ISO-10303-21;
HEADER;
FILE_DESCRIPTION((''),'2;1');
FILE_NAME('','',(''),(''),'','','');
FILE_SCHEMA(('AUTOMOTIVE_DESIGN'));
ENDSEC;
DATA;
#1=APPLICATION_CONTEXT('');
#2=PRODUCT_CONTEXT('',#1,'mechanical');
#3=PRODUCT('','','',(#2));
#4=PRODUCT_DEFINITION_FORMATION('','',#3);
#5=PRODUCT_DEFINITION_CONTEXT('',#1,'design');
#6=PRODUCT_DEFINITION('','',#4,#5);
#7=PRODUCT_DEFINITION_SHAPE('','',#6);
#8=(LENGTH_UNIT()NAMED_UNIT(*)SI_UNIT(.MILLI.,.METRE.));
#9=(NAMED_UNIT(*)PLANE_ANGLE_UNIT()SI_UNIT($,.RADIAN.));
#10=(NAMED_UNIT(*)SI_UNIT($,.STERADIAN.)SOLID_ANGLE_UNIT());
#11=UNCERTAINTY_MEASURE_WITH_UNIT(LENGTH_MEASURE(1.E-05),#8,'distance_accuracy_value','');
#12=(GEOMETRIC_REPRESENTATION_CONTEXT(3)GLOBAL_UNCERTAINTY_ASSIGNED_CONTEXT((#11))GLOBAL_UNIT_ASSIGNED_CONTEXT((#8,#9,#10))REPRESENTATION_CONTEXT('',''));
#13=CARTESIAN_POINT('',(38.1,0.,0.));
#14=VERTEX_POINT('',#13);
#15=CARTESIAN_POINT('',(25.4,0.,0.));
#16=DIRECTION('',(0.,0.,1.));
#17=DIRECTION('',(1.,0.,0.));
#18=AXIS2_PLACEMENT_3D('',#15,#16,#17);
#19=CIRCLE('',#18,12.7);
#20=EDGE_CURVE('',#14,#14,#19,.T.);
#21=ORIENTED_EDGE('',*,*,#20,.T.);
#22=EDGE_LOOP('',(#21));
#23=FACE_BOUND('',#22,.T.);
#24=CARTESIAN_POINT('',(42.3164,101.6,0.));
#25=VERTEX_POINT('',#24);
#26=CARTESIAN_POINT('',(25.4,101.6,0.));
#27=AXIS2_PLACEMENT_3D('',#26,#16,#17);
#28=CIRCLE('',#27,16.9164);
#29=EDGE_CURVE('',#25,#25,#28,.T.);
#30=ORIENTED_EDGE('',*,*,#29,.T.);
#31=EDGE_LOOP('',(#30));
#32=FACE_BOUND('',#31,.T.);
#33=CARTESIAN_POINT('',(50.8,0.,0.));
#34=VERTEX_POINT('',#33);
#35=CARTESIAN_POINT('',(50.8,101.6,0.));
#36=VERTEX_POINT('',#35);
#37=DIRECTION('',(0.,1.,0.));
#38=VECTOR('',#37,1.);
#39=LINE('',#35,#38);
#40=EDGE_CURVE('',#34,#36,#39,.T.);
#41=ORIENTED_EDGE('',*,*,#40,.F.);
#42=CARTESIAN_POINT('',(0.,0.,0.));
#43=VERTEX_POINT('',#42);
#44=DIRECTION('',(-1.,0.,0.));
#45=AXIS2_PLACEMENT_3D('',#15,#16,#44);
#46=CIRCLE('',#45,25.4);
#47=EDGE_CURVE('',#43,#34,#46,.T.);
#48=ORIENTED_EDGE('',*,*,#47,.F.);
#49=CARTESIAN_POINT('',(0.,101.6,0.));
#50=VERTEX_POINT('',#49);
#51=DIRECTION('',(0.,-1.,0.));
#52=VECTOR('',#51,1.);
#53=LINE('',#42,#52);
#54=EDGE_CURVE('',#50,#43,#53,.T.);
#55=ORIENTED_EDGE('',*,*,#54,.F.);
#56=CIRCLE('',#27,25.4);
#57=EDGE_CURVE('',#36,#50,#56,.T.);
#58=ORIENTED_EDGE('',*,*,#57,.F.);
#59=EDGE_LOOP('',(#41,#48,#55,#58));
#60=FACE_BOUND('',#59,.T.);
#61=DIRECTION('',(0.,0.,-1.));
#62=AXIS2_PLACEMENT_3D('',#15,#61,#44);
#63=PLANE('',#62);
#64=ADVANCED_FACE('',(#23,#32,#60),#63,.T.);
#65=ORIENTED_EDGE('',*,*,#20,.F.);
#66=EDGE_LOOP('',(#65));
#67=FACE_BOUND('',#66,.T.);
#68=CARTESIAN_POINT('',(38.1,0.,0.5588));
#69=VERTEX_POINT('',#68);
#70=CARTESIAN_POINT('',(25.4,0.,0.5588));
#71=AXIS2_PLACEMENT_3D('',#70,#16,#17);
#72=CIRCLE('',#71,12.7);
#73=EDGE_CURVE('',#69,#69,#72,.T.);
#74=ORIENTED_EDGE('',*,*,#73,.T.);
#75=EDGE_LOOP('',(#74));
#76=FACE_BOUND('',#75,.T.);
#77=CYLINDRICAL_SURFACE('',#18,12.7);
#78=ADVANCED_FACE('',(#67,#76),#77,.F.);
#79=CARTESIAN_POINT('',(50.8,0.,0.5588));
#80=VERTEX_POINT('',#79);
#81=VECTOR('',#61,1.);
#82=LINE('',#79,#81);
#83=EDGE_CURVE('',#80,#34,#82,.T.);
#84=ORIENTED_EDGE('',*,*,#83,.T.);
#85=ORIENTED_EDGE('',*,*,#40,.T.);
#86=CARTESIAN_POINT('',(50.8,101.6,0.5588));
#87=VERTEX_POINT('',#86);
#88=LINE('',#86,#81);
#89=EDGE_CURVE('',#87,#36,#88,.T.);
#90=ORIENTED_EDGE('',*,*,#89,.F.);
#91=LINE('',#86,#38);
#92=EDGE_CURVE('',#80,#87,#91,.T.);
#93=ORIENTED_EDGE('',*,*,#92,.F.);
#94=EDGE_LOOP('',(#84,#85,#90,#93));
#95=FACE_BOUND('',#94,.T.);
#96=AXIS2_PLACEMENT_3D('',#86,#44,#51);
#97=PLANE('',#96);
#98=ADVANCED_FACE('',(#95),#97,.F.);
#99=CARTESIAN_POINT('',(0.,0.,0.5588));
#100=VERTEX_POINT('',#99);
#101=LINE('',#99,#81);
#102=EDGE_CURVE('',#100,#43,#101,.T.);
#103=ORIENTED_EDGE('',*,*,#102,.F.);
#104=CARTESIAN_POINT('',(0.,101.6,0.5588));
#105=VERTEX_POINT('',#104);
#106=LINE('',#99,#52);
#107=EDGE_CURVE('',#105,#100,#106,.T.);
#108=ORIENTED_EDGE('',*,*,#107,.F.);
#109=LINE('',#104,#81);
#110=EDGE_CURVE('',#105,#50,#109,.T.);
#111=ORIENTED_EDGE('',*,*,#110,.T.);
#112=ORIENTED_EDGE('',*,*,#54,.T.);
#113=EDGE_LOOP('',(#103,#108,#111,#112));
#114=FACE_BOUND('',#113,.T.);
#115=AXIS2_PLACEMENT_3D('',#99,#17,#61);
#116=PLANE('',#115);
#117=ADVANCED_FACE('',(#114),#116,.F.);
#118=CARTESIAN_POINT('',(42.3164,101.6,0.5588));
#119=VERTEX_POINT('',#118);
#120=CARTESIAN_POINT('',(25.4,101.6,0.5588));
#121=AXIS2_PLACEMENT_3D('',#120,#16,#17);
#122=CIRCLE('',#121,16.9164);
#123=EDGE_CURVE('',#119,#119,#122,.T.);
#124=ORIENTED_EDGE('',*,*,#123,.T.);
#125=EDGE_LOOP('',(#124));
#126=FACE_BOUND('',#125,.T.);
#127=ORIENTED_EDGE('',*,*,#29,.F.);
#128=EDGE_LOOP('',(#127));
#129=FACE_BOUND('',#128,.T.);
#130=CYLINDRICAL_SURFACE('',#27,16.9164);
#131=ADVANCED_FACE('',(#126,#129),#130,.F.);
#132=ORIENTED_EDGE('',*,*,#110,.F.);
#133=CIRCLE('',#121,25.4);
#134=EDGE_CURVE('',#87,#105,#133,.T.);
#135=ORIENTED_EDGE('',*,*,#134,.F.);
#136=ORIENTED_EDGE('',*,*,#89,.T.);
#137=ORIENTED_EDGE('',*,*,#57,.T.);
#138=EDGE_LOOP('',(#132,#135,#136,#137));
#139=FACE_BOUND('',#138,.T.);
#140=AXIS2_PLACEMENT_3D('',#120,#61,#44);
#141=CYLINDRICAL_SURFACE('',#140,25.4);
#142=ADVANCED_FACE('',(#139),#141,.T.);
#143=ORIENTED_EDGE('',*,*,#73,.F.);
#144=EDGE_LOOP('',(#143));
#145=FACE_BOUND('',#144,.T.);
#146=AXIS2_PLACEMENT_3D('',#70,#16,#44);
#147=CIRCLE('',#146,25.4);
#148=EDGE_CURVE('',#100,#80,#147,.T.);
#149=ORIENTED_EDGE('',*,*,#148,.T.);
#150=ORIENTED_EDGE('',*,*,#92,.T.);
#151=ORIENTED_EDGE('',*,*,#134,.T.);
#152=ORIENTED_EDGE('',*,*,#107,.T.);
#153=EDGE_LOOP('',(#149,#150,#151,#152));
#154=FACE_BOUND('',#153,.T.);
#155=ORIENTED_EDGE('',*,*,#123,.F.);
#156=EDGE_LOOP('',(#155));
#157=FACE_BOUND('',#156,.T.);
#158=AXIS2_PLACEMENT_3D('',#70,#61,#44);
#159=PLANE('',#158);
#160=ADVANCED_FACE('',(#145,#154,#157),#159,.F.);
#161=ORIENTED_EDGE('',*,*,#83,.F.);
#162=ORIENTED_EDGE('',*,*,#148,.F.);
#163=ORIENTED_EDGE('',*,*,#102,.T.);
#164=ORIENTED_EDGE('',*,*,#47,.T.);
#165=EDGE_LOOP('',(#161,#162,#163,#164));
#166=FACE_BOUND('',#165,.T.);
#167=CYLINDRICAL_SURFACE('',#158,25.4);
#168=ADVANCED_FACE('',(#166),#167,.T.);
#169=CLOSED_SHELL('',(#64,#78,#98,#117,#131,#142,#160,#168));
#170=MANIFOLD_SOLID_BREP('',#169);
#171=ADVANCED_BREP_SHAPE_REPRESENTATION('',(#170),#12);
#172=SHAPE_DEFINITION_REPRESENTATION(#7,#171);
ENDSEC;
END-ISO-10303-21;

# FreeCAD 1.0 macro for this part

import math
import FreeCAD as App
import Part
import Sketcher

V = App.Vector
Q = App.Units.Quantity

doc = App.newDocument("Part")
body = doc.addObject("PartDesign::Body", "Body")

# Sketch on XY plane
sketch1 = body.newObject("Sketcher::SketchObject", "Sketch")
sketch1.AttachmentSupport = (doc.getObject("XY_Plane"), [""])
sketch1.MapMode = "FlatFace"
sketch1.addGeometry(Part.LineSegment(V(0, 101.6, 0), V(0, 0, 0)), False)
sketch1.addGeometry(Part.ArcOfCircle(Part.Circle(V(25.4, 0, 0), V(0, 0, 1), 25.4), math.radians(180), math.radians(360)), False)
sketch1.addGeometry(Part.LineSegment(V(50.8, 0, 0), V(50.8, 101.6, 0)), False)
sketch1.addGeometry(Part.ArcOfCircle(Part.Circle(V(25.4, 101.6, 0), V(0, 0, 1), 25.4), math.radians(0), math.radians(180)), False)
sketch1.addConstraint(Sketcher.Constraint("Tangent", 0, 2, 1, 1))
sketch1.addConstraint(Sketcher.Constraint("Tangent", 1, 2, 2, 1))
sketch1.addConstraint(Sketcher.Constraint("Tangent", 2, 2, 3, 1))
sketch1.addConstraint(Sketcher.Constraint("Tangent", 3, 2, 0, 1))
sketch1.addConstraint(Sketcher.Constraint("Vertical", 0))
sketch1.addConstraint(Sketcher.Constraint("Vertical", 2))
sketch1.addConstraint(Sketcher.Constraint("Coincident", 0, 2, -1, 1))
sketch1.addConstraint(Sketcher.Constraint("Radius", 1, Q("1 in")))
sketch1.addConstraint(Sketcher.Constraint("DistanceY", 0, 2, 0, 1, Q("4 in")))
pad1 = body.newObject("PartDesign::Pad", "Pad")
pad1.Profile = sketch1
pad1.Length = Q("0.022 in")

# Sketch on XY plane
sketch2 = body.newObject("Sketcher::SketchObject", "Sketch001")
sketch2.AttachmentSupport = (doc.getObject("XY_Plane"), [""])
sketch2.MapMode = "FlatFace"
sketch2.AttachmentOffset = App.Placement(V(0, 0, 0.022 * 25.4), App.Rotation())
sketch2.addGeometry(Part.Circle(V(25.4, 101.6, 0), V(0, 0, 1), 16.9164), False)
sketch2.addGeometry(Part.Circle(V(25.4, 0, 0), V(0, 0, 1), 12.7), False)
sketch2.addConstraint(Sketcher.Constraint("PointOnObject", 1, 3, -1))
sketch2.addConstraint(Sketcher.Constraint("Vertical", 0, 3, 1, 3))
sketch2.addConstraint(Sketcher.Constraint("Diameter", 1, Q("1 in")))
sketch2.addConstraint(Sketcher.Constraint("Diameter", 0, Q("1.332 in")))
sketch2.addConstraint(Sketcher.Constraint("DistanceX", -1, 1, 0, 3, Q("1 in")))
sketch2.addConstraint(Sketcher.Constraint("DistanceY", -1, 1, 0, 3, Q("4 in")))
pocket1 = body.newObject("PartDesign::Pocket", "Pocket")
pocket1.Profile = sketch2
pocket1.Type = "ThroughAll"

doc.recompute()
